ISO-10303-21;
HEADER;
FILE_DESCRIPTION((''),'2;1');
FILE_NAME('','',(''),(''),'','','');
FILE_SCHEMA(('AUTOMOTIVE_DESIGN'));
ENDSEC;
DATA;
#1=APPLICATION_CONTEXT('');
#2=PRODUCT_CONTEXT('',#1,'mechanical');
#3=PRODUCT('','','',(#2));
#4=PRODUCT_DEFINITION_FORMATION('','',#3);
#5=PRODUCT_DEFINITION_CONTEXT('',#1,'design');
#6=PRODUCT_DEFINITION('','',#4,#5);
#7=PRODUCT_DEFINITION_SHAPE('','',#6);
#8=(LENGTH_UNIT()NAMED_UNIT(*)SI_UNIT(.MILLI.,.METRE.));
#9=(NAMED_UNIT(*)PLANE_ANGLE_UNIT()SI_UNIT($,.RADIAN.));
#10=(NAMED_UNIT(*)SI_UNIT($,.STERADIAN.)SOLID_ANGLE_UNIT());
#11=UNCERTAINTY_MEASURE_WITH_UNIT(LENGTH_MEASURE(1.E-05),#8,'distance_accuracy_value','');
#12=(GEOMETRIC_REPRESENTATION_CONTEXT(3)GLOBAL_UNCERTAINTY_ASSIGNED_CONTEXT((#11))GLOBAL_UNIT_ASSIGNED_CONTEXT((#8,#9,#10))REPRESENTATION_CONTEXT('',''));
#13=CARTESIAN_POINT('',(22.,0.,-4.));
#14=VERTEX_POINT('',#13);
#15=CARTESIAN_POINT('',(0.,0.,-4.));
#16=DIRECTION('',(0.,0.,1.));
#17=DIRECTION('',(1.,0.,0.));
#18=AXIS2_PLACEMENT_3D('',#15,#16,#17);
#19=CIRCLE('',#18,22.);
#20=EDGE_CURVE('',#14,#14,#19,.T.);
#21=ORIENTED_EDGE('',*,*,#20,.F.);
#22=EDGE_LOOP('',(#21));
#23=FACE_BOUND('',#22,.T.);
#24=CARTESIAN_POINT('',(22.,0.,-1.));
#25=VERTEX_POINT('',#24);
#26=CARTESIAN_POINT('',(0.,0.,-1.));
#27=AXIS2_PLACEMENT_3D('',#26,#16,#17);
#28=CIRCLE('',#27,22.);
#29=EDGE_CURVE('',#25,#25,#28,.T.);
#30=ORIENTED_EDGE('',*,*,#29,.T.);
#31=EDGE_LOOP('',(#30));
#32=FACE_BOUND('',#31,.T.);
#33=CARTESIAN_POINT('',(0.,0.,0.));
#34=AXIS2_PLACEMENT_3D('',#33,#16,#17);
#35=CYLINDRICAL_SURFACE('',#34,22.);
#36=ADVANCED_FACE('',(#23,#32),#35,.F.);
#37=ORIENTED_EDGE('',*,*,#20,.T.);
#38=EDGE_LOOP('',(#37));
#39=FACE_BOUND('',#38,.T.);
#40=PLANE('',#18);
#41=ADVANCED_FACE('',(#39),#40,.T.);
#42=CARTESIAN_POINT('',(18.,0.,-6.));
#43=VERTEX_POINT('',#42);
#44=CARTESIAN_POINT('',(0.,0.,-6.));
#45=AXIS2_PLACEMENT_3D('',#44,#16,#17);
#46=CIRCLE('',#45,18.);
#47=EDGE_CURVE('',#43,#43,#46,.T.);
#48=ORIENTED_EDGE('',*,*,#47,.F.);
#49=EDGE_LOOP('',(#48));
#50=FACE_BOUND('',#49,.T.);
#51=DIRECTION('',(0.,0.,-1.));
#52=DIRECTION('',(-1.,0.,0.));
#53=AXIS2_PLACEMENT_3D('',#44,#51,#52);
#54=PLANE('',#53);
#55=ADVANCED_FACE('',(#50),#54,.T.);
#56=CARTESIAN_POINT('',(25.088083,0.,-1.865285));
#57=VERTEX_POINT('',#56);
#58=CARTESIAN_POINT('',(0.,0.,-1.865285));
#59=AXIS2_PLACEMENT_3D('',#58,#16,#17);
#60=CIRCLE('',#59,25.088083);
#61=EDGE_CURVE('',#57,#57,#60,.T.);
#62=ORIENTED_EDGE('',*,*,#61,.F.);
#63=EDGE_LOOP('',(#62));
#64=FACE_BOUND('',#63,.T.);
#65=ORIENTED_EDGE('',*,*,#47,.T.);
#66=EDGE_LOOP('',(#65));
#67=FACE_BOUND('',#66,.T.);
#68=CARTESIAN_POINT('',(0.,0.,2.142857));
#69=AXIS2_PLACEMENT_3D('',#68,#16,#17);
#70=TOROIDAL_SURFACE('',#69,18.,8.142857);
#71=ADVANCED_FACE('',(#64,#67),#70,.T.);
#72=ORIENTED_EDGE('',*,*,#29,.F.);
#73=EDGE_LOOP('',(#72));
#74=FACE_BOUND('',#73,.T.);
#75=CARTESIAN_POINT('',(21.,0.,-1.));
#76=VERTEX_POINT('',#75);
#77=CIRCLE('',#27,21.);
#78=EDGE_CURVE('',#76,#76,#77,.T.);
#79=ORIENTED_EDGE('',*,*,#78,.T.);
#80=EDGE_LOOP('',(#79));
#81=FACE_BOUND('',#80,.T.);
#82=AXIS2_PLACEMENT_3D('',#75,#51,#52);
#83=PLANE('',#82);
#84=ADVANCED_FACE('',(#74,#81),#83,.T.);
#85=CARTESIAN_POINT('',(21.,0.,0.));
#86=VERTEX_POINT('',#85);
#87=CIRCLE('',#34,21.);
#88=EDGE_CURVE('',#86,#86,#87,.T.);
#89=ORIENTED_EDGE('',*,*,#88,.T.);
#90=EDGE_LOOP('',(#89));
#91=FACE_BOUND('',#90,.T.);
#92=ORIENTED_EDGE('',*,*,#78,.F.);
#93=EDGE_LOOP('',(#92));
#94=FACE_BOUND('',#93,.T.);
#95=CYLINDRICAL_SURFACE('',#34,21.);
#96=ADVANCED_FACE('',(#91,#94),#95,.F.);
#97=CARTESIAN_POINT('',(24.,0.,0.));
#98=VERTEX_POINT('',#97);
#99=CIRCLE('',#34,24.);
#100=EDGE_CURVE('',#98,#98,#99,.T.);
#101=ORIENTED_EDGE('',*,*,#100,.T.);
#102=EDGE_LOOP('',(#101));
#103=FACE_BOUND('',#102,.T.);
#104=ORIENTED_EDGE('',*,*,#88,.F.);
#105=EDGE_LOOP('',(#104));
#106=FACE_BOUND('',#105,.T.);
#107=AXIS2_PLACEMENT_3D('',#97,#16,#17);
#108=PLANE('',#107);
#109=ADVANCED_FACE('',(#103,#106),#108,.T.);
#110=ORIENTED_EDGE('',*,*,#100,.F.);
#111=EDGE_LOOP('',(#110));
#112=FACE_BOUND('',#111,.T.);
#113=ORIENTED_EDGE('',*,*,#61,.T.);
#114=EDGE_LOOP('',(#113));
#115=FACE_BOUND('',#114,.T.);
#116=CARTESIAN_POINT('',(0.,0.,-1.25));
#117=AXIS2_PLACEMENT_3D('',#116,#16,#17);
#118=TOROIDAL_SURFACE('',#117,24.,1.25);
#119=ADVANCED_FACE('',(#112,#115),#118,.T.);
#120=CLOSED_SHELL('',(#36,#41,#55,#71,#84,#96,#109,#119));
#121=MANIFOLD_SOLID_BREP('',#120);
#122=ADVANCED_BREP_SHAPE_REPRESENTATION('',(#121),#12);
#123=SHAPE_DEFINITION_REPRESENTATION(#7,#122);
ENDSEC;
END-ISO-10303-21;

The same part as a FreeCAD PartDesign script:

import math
import FreeCAD as App
import Part
import Sketcher
from FreeCAD import Vector
Q = App.Units.Quantity

doc = App.newDocument("Part")
params = doc.addObject("Spreadsheet::Sheet", "Params")
for row, (alias, value) in enumerate([
    ("sketch1_width", "18 mm"),
    ("sketch1_width2", "22 mm"),
    ("sketch1_width3", "1 mm"),
    ("sketch1_width4", "3 mm"),
    ("sketch1_height", "2 mm"),
    ("revolution_angle", "360 deg"),
], start=1):
    params.set(f"A{row}", alias)
    params.set(f"B{row}", "=" + value)
    params.setAlias(f"B{row}", alias)

body = doc.addObject("PartDesign::Body", "Body")

sketch1 = body.newObject("Sketcher::SketchObject", "Sketch")
sketch1.AttachmentSupport = (doc.getObject("XZ_Plane"), [""])
sketch1.MapMode = "FlatFace"
sketch1.addGeometry(Part.LineSegment(Vector(18, -6, 0), Vector(0, -6, 0)), False)
sketch1.addGeometry(Part.LineSegment(Vector(0, -6, 0), Vector(0, -4, 0)), False)
sketch1.addGeometry(Part.LineSegment(Vector(0, -4, 0), Vector(22, -4, 0)), False)
sketch1.addGeometry(Part.LineSegment(Vector(22, -4, 0), Vector(22, -1, 0)), False)
sketch1.addGeometry(Part.LineSegment(Vector(22, -1, 0), Vector(21, -1, 0)), False)
sketch1.addGeometry(Part.LineSegment(Vector(21, -1, 0), Vector(21, 0, 0)), False)
sketch1.addGeometry(Part.LineSegment(Vector(21, 0, 0), Vector(24, 0, 0)), False)
sketch1.addGeometry(Part.ArcOfCircle(Part.Circle(Vector(24, -1.2, 0), Vector(0, 0, 1), 1.2), math.radians(-29), math.radians(90)), False)
sketch1.addGeometry(Part.ArcOfCircle(Part.Circle(Vector(18, 2.1, 0), Vector(0, 0, 1), 8.1), math.radians(-90), math.radians(-29)), False)
sketch1.addConstraint(Sketcher.Constraint("Coincident", 0, 2, 1, 1))
sketch1.addConstraint(Sketcher.Constraint("Coincident", 1, 2, 2, 1))
sketch1.addConstraint(Sketcher.Constraint("Coincident", 2, 2, 3, 1))
sketch1.addConstraint(Sketcher.Constraint("Coincident", 3, 2, 4, 1))
sketch1.addConstraint(Sketcher.Constraint("Coincident", 4, 2, 5, 1))
sketch1.addConstraint(Sketcher.Constraint("Coincident", 5, 2, 6, 1))
sketch1.addConstraint(Sketcher.Constraint("Tangent", 6, 2, 7, 2))
sketch1.addConstraint(Sketcher.Constraint("Tangent", 7, 1, 8, 2))
sketch1.addConstraint(Sketcher.Constraint("Tangent", 8, 1, 0, 1))
sketch1.addConstraint(Sketcher.Constraint("Horizontal", 0))
sketch1.addConstraint(Sketcher.Constraint("Vertical", 1))
sketch1.addConstraint(Sketcher.Constraint("Horizontal", 2))
sketch1.addConstraint(Sketcher.Constraint("Vertical", 3))
sketch1.addConstraint(Sketcher.Constraint("Horizontal", 4))
sketch1.addConstraint(Sketcher.Constraint("Vertical", 5))
sketch1.addConstraint(Sketcher.Constraint("Horizontal", 6))
sketch1.addConstraint(Sketcher.Constraint("PointOnObject", 0, 2, -2))
sketch1.addConstraint(Sketcher.Constraint("PointOnObject", 5, 2, -1))
sketch1.addConstraint(Sketcher.Constraint("Equal", 6, 3))
sketch1.addConstraint(Sketcher.Constraint("Equal", 4, 5))
sketch1.addConstraint(Sketcher.Constraint("DistanceX", 0, 2, 0, 1, Q("18 mm")))
sketch1.addConstraint(Sketcher.Constraint("DistanceX", 2, 1, 2, 2, Q("22 mm")))
sketch1.addConstraint(Sketcher.Constraint("DistanceX", 4, 2, 4, 1, Q("1 mm")))
sketch1.addConstraint(Sketcher.Constraint("DistanceX", 6, 1, 6, 2, Q("3 mm")))
sketch1.addConstraint(Sketcher.Constraint("DistanceY", 1, 1, 1, 2, Q("2 mm")))
sketch1.addConstraint(Sketcher.Constraint("Radius", 7, Q("1.25 mm")))
sketch1.setExpression("Constraints[20]", "Params.sketch1_width")
sketch1.setExpression("Constraints[21]", "Params.sketch1_width2")
sketch1.setExpression("Constraints[22]", "Params.sketch1_width3")
sketch1.setExpression("Constraints[23]", "Params.sketch1_width4")
sketch1.setExpression("Constraints[24]", "Params.sketch1_height")
revolution = body.newObject("PartDesign::Revolution", "Revolution")
revolution.Profile = sketch1
revolution.ReferenceAxis = (sketch1, ["V_Axis"])
revolution.setExpression("Angle", "Params.revolution_angle")

doc.recompute()
